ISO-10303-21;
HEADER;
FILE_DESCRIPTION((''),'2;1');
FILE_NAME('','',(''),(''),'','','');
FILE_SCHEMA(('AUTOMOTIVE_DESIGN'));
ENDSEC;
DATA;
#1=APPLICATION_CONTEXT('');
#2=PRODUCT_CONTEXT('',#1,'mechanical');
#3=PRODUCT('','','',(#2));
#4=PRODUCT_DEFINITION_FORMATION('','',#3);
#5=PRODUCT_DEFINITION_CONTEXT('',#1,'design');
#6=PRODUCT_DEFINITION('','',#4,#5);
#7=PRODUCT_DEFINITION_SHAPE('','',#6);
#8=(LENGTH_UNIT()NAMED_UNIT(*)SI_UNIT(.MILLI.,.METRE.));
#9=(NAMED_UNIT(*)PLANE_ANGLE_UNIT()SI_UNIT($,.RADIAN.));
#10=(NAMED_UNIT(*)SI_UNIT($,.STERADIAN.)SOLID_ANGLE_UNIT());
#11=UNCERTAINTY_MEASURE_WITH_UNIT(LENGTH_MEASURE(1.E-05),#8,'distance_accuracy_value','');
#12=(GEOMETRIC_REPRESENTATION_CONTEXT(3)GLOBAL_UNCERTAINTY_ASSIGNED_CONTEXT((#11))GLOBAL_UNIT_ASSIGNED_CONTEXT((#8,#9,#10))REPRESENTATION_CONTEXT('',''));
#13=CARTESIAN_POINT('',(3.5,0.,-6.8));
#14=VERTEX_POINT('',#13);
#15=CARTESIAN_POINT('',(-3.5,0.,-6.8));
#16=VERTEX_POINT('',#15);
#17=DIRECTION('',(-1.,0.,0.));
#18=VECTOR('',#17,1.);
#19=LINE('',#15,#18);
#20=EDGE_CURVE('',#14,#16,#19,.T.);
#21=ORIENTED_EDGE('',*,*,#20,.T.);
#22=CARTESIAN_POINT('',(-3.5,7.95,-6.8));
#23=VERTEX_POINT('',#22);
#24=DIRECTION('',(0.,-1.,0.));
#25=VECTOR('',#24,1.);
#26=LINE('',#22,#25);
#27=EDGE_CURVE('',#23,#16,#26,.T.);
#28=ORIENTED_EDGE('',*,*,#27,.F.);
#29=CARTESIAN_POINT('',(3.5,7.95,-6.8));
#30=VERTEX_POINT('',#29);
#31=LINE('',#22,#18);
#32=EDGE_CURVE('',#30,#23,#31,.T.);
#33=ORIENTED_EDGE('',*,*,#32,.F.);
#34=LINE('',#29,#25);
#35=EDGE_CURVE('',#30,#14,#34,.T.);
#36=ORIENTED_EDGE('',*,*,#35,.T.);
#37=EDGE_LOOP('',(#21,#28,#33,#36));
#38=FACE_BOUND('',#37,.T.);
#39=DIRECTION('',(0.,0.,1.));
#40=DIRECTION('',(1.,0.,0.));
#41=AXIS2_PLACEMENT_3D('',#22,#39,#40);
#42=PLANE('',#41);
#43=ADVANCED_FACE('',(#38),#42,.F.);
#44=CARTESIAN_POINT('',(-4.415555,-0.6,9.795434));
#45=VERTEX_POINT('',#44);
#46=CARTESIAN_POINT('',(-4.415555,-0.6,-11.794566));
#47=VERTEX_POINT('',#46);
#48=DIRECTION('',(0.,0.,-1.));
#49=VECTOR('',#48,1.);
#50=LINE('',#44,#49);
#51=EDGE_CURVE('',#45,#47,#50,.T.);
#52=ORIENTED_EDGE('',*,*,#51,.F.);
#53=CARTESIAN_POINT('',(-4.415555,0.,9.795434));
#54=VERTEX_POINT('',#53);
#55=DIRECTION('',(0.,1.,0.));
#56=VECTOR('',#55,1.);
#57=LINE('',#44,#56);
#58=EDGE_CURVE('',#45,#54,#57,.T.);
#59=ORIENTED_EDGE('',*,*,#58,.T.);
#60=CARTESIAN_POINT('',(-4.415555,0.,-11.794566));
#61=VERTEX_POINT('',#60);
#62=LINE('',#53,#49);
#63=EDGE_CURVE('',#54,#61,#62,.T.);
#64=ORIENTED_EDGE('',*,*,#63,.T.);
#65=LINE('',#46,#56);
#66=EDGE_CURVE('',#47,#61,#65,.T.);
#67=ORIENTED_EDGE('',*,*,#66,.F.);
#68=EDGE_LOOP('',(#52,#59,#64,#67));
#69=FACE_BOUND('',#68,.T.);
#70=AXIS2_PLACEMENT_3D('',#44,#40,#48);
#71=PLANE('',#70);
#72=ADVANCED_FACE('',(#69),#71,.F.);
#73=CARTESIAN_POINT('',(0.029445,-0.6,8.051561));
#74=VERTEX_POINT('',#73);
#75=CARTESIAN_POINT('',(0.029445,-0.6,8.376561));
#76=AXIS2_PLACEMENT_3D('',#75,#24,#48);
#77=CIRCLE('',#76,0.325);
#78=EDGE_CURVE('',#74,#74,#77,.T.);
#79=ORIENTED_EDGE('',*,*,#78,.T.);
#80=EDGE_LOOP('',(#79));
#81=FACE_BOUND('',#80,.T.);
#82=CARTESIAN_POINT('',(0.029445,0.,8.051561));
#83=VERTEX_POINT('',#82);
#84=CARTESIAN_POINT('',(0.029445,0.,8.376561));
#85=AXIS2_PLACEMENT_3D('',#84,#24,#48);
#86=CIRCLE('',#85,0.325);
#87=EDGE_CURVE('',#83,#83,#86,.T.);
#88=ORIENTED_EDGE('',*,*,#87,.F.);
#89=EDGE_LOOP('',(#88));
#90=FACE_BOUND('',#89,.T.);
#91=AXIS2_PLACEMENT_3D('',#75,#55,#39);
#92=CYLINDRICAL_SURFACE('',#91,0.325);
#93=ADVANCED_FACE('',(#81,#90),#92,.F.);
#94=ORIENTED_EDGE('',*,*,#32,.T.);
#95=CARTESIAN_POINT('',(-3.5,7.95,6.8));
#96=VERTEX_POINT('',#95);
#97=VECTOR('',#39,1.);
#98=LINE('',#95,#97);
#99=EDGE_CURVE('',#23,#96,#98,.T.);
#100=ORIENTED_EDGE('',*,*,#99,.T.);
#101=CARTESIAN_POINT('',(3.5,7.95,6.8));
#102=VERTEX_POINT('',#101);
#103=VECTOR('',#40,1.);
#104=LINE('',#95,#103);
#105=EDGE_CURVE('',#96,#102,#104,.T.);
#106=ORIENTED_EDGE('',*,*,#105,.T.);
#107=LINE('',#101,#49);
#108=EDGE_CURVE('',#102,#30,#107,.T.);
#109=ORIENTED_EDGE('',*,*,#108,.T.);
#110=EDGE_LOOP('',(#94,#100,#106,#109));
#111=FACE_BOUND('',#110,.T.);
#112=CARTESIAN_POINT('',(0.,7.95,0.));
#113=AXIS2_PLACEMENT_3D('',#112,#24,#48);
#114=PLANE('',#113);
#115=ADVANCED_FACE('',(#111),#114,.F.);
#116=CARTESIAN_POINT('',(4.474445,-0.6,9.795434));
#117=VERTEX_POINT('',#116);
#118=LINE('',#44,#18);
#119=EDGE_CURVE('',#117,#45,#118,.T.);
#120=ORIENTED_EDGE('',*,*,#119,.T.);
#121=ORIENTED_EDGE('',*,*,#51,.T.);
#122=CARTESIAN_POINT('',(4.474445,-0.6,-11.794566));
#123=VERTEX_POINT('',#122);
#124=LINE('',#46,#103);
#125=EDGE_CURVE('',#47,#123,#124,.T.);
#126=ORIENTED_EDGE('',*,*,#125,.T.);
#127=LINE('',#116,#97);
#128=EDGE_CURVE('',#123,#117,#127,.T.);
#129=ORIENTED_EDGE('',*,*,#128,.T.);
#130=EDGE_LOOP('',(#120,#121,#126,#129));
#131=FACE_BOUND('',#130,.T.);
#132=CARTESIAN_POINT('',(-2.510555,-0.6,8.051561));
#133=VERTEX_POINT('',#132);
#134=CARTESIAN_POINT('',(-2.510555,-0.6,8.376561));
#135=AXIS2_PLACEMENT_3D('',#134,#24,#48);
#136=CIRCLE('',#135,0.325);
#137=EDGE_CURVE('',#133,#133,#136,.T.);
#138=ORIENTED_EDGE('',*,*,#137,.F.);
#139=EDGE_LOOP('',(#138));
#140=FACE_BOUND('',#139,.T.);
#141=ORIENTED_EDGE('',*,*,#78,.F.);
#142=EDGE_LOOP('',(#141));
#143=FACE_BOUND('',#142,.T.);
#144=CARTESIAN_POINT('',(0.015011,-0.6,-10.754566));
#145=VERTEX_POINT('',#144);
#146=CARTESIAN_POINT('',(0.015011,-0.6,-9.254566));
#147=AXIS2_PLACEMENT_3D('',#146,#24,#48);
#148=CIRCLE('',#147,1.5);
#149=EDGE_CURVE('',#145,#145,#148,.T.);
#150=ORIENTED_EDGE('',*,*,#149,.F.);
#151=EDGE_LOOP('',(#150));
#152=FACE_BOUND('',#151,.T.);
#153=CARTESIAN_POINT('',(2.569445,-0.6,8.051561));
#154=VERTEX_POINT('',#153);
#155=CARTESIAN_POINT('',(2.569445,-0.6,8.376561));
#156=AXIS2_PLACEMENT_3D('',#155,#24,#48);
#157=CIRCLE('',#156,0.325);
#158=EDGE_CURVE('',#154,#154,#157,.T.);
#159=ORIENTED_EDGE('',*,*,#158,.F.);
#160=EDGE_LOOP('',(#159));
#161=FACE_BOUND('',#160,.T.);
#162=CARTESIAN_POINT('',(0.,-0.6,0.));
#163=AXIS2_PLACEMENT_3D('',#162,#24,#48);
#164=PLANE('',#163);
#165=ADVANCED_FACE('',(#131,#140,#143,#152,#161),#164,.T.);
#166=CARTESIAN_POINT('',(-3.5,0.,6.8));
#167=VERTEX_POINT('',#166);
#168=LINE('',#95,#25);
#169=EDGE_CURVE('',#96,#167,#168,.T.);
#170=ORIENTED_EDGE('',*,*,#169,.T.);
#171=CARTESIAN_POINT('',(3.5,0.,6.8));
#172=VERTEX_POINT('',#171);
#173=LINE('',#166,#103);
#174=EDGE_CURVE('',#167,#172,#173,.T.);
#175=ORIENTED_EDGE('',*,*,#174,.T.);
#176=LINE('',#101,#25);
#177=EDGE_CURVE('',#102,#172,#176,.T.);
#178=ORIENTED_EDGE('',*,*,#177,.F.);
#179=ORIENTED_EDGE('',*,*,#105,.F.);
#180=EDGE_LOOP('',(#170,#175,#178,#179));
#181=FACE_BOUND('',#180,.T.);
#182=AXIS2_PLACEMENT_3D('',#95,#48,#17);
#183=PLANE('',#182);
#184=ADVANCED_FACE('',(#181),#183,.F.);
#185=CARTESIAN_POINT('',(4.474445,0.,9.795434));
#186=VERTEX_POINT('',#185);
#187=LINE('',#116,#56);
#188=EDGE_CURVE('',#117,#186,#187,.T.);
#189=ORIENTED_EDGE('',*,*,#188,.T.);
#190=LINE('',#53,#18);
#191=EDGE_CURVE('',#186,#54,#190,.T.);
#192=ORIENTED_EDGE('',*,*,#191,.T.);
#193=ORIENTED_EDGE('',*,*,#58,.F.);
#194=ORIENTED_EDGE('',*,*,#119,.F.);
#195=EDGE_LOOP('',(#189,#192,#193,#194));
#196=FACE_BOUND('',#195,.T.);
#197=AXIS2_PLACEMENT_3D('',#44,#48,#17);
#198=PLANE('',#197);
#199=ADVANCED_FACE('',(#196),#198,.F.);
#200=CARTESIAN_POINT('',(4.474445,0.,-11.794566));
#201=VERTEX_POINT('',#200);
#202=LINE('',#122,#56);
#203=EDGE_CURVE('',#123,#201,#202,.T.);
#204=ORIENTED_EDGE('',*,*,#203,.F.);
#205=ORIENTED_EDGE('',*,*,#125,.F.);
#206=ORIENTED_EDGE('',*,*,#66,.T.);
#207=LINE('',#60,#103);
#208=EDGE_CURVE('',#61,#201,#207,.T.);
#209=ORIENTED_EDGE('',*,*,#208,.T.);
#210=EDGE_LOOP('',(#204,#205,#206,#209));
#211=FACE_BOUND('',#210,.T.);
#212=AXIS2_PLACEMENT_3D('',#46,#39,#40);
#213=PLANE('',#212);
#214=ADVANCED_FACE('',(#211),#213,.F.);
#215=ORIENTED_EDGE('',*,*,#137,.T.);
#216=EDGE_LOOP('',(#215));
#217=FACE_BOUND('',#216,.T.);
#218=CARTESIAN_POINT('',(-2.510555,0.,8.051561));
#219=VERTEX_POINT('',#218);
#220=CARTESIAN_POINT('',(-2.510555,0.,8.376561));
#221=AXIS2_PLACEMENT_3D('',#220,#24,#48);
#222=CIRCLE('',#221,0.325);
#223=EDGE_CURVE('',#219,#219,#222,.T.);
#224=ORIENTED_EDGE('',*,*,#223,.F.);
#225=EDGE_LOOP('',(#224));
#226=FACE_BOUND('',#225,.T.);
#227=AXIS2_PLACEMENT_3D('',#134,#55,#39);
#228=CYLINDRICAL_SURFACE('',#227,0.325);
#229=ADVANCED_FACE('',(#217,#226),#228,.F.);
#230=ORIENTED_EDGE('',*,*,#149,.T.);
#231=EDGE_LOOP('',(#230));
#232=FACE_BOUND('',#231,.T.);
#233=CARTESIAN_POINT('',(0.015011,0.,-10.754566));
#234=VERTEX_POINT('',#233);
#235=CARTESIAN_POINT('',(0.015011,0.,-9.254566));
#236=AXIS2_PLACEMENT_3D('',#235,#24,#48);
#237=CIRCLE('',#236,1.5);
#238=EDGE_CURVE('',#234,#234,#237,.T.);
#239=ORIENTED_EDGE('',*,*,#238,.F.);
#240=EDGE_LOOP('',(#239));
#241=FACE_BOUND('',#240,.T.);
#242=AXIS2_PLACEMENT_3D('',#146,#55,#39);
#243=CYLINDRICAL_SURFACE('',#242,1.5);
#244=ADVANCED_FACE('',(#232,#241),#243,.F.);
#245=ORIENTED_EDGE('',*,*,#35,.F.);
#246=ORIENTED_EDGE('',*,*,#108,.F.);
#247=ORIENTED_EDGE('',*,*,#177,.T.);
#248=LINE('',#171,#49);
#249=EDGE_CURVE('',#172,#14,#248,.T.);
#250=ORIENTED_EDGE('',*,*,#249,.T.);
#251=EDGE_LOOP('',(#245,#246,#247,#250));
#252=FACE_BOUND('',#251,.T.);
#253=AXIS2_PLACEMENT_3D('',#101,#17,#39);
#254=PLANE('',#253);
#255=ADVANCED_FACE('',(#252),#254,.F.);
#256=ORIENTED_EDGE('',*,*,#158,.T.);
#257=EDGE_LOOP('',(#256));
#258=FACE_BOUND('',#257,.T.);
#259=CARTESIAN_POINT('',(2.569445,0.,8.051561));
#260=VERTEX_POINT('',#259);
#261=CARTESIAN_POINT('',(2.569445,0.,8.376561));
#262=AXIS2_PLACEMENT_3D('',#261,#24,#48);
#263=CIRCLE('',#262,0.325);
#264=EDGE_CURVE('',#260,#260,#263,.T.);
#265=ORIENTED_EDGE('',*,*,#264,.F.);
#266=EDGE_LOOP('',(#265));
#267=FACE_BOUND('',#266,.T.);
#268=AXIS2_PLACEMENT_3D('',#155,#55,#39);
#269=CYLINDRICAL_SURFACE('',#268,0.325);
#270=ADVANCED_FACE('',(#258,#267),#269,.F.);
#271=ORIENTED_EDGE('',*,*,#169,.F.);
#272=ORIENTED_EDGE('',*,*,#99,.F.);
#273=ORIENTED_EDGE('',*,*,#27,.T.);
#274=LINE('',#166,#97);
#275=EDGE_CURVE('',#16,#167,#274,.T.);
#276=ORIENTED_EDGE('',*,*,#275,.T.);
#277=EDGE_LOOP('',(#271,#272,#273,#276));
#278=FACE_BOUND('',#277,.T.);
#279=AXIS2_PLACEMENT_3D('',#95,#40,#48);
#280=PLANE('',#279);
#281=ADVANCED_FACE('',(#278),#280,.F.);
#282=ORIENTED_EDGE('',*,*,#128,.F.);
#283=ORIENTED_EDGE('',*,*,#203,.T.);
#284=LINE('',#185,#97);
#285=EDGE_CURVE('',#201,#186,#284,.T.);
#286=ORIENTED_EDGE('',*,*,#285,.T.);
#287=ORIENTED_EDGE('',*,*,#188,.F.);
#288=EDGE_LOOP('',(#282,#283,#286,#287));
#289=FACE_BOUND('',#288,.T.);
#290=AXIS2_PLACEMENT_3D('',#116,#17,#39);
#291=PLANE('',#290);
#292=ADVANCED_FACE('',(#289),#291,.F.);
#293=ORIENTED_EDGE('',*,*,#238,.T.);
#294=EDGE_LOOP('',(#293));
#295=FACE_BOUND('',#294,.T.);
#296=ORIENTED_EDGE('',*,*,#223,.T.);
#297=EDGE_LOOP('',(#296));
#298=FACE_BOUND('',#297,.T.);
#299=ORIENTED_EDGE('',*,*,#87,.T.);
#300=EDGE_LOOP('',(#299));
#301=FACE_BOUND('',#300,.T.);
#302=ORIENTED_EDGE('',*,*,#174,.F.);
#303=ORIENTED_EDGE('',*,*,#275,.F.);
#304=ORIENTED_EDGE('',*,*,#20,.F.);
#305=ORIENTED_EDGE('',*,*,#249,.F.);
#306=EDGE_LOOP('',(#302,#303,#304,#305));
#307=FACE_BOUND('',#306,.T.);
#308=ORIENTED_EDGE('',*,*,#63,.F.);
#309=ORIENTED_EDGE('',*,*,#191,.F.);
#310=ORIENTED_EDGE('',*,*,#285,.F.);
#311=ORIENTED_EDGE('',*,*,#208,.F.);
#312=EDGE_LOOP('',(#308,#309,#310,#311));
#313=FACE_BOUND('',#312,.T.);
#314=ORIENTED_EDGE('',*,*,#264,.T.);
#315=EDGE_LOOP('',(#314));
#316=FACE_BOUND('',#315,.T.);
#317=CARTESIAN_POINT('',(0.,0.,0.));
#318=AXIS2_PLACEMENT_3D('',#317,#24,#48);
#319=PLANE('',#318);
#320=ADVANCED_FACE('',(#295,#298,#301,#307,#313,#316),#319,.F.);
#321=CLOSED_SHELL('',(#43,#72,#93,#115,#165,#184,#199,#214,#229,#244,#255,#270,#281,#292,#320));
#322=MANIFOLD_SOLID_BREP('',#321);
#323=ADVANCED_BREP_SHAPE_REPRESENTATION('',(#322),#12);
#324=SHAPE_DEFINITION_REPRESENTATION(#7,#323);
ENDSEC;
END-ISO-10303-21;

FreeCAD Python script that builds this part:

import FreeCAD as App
import Part
import Sketcher
Q = App.Units.Quantity

doc = App.newDocument("Part")
params = doc.addObject("Spreadsheet::Sheet", "Params")
for row, (alias, value) in enumerate([
    ("sketch1_width", "7 mm"),
    ("sketch1_height", "13.6 mm"),
    ("pad1_length", "7.95 mm"),
    ("sketch2_diameter", "3 mm"),
    ("sketch2_diameter2", "0.65 mm"),
    ("sketch2_width", "8.89 mm"),
    ("sketch2_height", "21.59 mm"),
    ("pad2_length", "0.6 mm"),
], start=1):
    params.set(f"A{row}", alias)
    params.set(f"B{row}", "=" + value)
    params.setAlias(f"B{row}", alias)

body = doc.addObject("PartDesign::Body", "Body")

# Sketch on XZ plane
sketch1 = body.newObject("Sketcher::SketchObject", "Sketch")
sketch1.AttachmentSupport = (doc.getObject("XZ_Plane"), [""])
sketch1.MapMode = "FlatFace"
sketch1.addGeometry([
    Part.LineSegment(App.Vector(-3.5, -6.8, 0), App.Vector(-3.5, 6.8, 0)),
    Part.LineSegment(App.Vector(-3.5, 6.8, 0), App.Vector(3.5, 6.8, 0)),
    Part.LineSegment(App.Vector(3.5, 6.8, 0), App.Vector(3.5, -6.8, 0)),
    Part.LineSegment(App.Vector(3.5, -6.8, 0), App.Vector(-3.5, -6.8, 0)),
], False)
sketch1.addConstraint([
    Sketcher.Constraint("Coincident", 0, 2, 1, 1),
    Sketcher.Constraint("Coincident", 1, 2, 2, 1),
    Sketcher.Constraint("Coincident", 2, 2, 3, 1),
    Sketcher.Constraint("Coincident", 3, 2, 0, 1),
    Sketcher.Constraint("Vertical", 0),
    Sketcher.Constraint("Horizontal", 1),
    Sketcher.Constraint("Vertical", 2),
    Sketcher.Constraint("Horizontal", 3),
    Sketcher.Constraint("Symmetric", 0, 2, 2, 2, -1, 1),
    Sketcher.Constraint("DistanceX", 1, 1, 1, 2, Q("7 mm")),
    Sketcher.Constraint("DistanceY", 0, 1, 0, 2, Q("13.6 mm")),
])
sketch1.setExpression("Constraints[9]", "Params.sketch1_width")
sketch1.setExpression("Constraints[10]", "Params.sketch1_height")
pad1 = body.newObject("PartDesign::Pad", "Pad")
pad1.Profile = sketch1
pad1.setExpression("Length", "Params.pad1_length")
pad1.Reversed = True

# Sketch on XZ plane
sketch2 = body.newObject("Sketcher::SketchObject", "Sketch001")
sketch2.AttachmentSupport = (doc.getObject("XZ_Plane"), [""])
sketch2.MapMode = "FlatFace"
sketch2.addGeometry([
    Part.LineSegment(App.Vector(-4.415555, 9.795434, 0), App.Vector(-4.415555, -11.794566, 0)),  # 0
    Part.LineSegment(App.Vector(-4.415555, -11.794566, 0), App.Vector(4.474445, -11.794566, 0)),  # 1
    Part.LineSegment(App.Vector(4.474445, -11.794566, 0), App.Vector(4.474445, 9.795434, 0)),  # 2
    Part.LineSegment(App.Vector(4.474445, 9.795434, 0), App.Vector(-4.415555, 9.795434, 0)),  # 3
    Part.Circle(App.Vector(0.015011, -9.254566, 0), App.Vector(0, 0, 1), 1.5),  # 4
    Part.Circle(App.Vector(-2.510555, 8.376561, 0), App.Vector(0, 0, 1), 0.325),  # 5
    Part.Circle(App.Vector(0.029445, 8.376561, 0), App.Vector(0, 0, 1), 0.325),  # 6
    Part.Circle(App.Vector(2.569445, 8.376561, 0), App.Vector(0, 0, 1), 0.325),  # 7
], False)
sketch2.addConstraint([
    Sketcher.Constraint("Coincident", 0, 2, 1, 1),
    Sketcher.Constraint("Coincident", 1, 2, 2, 1),
    Sketcher.Constraint("Coincident", 2, 2, 3, 1),
    Sketcher.Constraint("Coincident", 3, 2, 0, 1),
    Sketcher.Constraint("Vertical", 0),
    Sketcher.Constraint("Horizontal", 1),
    Sketcher.Constraint("Vertical", 2),
    Sketcher.Constraint("Horizontal", 3),
    Sketcher.Constraint("Equal", 5, 6),
    Sketcher.Constraint("Equal", 6, 7),
    Sketcher.Constraint("Horizontal", 5, 3, 6, 3),
    Sketcher.Constraint("Horizontal", 6, 3, 7, 3),
    Sketcher.Constraint("Diameter", 4, Q("3 mm")),
    Sketcher.Constraint("Diameter", 5, Q("0.65 mm")),
    Sketcher.Constraint("DistanceX", 1, 1, 1, 2, Q("8.89 mm")),
    Sketcher.Constraint("DistanceY", 0, 2, 0, 1, Q("21.59 mm")),
    Sketcher.Constraint("DistanceX", 5, 3, 6, 3, Q("2.54 mm")),
    Sketcher.Constraint("DistanceX", 6, 3, 7, 3, Q("2.54 mm")),
    Sketcher.Constraint("DistanceY", 0, 2, 4, 3, Q("2.54 mm")),
    Sketcher.Constraint("DistanceX", 0, 2, 5, 3, Q("1.905 mm")),
    Sketcher.Constraint("DistanceX", -1, 1, 4, 3, Q("0.015011 mm")),
    Sketcher.Constraint("DistanceY", -1, 1, 5, 3, Q("8.376561 mm")),
    Sketcher.Constraint("DistanceY", 4, 3, -1, 1, Q("9.254566 mm")),
    Sketcher.Constraint("DistanceX", 5, 3, -1, 1, Q("2.510555 mm")),
])
sketch2.setExpression("Constraints[12]", "Params.sketch2_diameter")
sketch2.setExpression("Constraints[13]", "Params.sketch2_diameter2")
sketch2.setExpression("Constraints[14]", "Params.sketch2_width")
sketch2.setExpression("Constraints[15]", "Params.sketch2_height")
pad2 = body.newObject("PartDesign::Pad", "Pad001")
pad2.Profile = sketch2
pad2.setExpression("Length", "Params.pad2_length")

doc.recompute()
